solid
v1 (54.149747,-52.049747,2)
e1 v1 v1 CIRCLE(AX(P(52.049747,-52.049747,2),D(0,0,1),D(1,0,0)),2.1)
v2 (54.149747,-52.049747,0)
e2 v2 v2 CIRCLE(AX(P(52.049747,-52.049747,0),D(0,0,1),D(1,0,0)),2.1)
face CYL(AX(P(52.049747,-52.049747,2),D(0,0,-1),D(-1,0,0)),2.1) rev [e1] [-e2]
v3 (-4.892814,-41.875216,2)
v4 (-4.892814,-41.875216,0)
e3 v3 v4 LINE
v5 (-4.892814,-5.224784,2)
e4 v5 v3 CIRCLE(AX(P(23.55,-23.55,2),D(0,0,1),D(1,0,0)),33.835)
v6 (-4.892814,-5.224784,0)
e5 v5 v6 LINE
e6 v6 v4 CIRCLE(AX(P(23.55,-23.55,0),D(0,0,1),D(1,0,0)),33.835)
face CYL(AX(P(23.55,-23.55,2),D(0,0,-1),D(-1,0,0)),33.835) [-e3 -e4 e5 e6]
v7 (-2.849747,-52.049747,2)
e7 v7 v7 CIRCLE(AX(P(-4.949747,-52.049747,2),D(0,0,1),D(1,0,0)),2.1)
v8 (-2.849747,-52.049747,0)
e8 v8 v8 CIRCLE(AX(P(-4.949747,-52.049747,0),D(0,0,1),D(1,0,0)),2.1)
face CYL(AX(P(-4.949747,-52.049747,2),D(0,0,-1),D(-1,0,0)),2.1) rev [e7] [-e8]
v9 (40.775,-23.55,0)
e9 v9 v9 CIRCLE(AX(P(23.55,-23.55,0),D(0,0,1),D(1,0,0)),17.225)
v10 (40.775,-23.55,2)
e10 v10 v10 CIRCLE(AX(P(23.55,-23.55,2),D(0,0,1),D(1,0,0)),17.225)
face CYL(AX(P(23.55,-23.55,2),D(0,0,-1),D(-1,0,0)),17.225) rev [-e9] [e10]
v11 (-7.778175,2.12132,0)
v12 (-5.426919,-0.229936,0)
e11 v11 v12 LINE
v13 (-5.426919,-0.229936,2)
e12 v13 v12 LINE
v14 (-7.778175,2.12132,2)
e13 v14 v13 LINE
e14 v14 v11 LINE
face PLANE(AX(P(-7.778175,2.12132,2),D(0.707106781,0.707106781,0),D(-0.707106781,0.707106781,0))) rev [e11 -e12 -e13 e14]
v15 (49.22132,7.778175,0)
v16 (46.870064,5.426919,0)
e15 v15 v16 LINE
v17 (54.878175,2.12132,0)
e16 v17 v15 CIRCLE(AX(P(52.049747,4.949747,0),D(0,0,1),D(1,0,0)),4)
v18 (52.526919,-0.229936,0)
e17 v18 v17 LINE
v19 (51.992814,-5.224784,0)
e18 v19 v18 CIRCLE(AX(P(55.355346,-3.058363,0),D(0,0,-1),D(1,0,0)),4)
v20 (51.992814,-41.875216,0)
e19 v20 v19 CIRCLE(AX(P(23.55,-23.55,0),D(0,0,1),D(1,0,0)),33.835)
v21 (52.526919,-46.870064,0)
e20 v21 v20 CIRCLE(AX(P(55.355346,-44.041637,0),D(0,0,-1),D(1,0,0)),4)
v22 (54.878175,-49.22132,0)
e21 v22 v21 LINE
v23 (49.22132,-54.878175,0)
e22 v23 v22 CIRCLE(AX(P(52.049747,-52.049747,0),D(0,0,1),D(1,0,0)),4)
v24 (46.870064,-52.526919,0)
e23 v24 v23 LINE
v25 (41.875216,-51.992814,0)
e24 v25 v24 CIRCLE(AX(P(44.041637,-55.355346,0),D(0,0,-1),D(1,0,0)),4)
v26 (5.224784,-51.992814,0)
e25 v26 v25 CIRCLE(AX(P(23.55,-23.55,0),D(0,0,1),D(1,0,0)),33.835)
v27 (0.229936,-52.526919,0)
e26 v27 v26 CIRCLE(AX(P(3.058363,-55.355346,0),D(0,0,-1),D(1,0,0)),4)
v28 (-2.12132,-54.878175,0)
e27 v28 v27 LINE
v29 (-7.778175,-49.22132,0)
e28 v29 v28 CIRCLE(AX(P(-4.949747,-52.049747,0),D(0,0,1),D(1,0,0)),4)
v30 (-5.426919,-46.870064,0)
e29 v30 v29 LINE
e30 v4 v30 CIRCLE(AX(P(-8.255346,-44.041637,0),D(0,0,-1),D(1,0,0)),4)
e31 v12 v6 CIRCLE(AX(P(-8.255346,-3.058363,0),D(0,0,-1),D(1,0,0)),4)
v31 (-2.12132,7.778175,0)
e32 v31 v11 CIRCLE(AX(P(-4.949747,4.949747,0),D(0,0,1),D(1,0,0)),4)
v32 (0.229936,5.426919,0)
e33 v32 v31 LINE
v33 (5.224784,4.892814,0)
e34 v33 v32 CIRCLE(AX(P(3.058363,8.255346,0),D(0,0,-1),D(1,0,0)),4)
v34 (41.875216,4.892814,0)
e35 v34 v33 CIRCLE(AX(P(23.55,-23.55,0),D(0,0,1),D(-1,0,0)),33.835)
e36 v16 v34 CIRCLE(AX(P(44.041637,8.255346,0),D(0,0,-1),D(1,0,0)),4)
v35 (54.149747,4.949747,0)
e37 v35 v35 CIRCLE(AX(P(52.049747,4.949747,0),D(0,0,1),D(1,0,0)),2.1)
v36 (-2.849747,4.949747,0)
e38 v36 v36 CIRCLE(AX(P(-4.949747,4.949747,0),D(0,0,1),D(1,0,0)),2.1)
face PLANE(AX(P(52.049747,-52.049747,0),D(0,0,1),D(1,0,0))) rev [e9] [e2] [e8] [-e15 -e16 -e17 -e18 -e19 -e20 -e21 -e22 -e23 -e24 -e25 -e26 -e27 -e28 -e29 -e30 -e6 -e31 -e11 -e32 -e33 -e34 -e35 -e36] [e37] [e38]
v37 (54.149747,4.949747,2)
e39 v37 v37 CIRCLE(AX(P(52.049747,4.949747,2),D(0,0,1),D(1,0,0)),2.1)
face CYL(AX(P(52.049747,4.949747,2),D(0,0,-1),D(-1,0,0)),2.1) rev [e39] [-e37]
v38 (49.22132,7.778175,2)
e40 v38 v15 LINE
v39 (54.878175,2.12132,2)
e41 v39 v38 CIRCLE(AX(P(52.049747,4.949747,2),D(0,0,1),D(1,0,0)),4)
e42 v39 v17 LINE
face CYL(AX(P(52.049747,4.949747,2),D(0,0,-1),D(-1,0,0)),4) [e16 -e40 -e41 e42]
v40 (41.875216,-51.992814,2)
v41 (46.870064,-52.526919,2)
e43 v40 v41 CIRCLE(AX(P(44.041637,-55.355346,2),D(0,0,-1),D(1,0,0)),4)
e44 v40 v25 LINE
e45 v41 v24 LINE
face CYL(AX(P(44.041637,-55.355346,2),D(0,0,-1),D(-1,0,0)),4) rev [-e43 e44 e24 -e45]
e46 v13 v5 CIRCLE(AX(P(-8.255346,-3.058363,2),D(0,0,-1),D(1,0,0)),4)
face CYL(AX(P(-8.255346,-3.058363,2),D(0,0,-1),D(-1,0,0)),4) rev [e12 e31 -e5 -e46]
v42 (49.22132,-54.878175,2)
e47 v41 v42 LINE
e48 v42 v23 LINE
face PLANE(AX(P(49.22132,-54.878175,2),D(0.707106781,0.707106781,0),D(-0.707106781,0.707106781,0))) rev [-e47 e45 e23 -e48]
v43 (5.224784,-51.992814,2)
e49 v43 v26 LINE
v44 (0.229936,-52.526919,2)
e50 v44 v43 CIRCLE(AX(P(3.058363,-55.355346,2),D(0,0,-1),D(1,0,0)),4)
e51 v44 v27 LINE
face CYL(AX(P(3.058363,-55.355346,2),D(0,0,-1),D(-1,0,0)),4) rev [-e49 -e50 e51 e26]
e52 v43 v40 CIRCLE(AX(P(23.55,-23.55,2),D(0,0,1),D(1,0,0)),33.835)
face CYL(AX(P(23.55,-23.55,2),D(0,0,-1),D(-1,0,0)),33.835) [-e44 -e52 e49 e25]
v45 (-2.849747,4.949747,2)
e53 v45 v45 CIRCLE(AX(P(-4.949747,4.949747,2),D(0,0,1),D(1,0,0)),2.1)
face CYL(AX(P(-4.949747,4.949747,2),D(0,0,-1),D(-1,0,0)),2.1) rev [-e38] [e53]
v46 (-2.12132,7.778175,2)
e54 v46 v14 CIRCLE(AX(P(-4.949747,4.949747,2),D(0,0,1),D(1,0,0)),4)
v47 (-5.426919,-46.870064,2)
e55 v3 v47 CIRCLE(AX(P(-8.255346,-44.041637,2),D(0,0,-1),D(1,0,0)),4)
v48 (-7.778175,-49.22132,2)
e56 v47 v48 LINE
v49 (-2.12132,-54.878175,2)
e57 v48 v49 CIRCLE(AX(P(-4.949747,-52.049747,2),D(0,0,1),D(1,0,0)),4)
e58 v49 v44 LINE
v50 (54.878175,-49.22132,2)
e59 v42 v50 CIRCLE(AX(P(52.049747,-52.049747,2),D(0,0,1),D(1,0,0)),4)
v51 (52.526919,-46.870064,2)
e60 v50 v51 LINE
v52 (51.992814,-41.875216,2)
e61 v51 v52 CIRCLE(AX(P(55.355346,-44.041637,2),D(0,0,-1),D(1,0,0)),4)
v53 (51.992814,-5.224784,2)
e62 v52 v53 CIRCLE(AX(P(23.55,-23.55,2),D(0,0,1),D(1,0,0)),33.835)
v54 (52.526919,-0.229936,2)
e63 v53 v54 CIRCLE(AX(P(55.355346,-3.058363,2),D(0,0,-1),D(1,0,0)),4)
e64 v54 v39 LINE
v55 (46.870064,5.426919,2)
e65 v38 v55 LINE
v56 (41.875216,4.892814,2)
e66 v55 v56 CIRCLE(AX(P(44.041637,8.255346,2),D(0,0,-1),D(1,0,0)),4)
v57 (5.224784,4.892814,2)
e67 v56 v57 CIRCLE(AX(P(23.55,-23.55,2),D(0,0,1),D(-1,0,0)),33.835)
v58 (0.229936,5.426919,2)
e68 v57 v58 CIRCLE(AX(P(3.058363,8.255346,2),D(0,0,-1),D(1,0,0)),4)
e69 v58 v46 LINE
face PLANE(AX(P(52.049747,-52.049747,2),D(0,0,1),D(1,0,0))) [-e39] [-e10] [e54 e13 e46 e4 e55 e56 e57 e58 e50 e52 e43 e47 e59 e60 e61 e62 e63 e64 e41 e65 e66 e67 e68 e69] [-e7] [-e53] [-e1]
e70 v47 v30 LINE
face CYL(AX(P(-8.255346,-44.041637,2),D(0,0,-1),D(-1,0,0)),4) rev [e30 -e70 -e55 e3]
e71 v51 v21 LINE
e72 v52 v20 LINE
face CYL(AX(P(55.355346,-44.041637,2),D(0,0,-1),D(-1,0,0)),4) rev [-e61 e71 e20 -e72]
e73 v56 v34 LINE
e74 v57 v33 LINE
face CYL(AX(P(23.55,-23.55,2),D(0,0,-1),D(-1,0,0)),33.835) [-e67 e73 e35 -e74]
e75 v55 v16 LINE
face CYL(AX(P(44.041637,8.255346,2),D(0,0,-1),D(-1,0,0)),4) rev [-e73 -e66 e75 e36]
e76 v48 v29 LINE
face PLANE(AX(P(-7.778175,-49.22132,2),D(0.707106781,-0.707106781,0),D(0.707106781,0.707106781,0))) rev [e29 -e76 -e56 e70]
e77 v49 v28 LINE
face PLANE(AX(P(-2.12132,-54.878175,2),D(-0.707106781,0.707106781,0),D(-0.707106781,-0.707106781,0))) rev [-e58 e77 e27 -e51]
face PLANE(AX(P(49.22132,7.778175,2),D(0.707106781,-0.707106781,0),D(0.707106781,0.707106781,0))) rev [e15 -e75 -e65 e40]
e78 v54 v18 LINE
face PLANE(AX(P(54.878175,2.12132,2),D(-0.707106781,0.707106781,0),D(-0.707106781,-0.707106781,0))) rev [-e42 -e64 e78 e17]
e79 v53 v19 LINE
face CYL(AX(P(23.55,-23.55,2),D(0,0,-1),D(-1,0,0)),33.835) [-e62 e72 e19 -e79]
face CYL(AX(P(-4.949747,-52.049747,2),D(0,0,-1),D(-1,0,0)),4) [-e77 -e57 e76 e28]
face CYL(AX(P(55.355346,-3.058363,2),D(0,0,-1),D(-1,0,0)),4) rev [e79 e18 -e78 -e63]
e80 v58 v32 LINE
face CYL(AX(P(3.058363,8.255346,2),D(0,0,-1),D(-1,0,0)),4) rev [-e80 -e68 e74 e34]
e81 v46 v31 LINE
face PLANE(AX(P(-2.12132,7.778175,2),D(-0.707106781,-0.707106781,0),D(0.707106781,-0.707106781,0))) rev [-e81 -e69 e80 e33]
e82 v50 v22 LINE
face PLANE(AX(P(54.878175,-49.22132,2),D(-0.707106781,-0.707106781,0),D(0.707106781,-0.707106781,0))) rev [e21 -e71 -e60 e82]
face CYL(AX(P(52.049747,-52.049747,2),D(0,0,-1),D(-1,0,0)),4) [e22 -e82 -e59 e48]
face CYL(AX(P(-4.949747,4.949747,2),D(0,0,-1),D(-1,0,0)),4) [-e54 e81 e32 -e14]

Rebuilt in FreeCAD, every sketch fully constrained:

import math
import FreeCAD as App
import Part
import Sketcher

V = App.Vector

doc = App.newDocument("Part")
body = doc.addObject("PartDesign::Body", "Body")

# Sketch on XY plane
sketch1 = body.newObject("Sketcher::SketchObject", "Sketch")
sketch1.AttachmentSupport = (doc.getObject("XY_Plane"), [""])
sketch1.MapMode = "FlatFace"
sketch1.addGeometry([
    Part.LineSegment(V(46.870064, -52.526919, 0), V(49.22132, -54.878175, 0)),  # 0
    Part.ArcOfCircle(Part.Circle(V(52.049747, -52.049747, 0), V(0, 0, 1), 4), math.radians(-135), math.radians(45)),  # 1
    Part.LineSegment(V(54.878175, -49.22132, 0), V(52.526919, -46.870064, 0)),  # 2
    Part.ArcOfCircle(Part.Circle(V(55.355346, -44.041637, 0), V(0, 0, 1), 4), math.radians(147.207013), math.radians(225)),  # 3
    Part.ArcOfCircle(Part.Circle(V(23.55, -23.55, 0), V(0, 0, 1), 33.835), math.radians(-32.792987), math.radians(32.792987)),  # 4
    Part.ArcOfCircle(Part.Circle(V(55.355346, -3.058363, 0), V(0, 0, 1), 4), math.radians(135), math.radians(212.792987)),  # 5
    Part.LineSegment(V(52.526919, -0.229936, 0), V(54.878175, 2.12132, 0)),  # 6
    Part.ArcOfCircle(Part.Circle(V(52.049747, 4.949747, 0), V(0, 0, 1), 4), math.radians(-45), math.radians(135)),  # 7
    Part.LineSegment(V(49.22132, 7.778175, 0), V(46.870064, 5.426919, 0)),  # 8
    Part.ArcOfCircle(Part.Circle(V(44.041637, 8.255346, 0), V(0, 0, 1), 4), math.radians(-122.792987), math.radians(-45)),  # 9
    Part.ArcOfCircle(Part.Circle(V(23.55, -23.55, 0), V(0, 0, 1), 33.835), math.radians(57.207013), math.radians(122.792987)),  # 10
    Part.ArcOfCircle(Part.Circle(V(3.058363, 8.255346, 0), V(0, 0, 1), 4), math.radians(-135), math.radians(-57.207013)),  # 11
    Part.LineSegment(V(0.229936, 5.426919, 0), V(-2.12132, 7.778175, 0)),  # 12
    Part.ArcOfCircle(Part.Circle(V(-4.949747, 4.949747, 0), V(0, 0, 1), 4), math.radians(45), math.radians(225)),  # 13
    Part.LineSegment(V(-7.778175, 2.12132, 0), V(-5.426919, -0.229936, 0)),  # 14
    Part.ArcOfCircle(Part.Circle(V(-8.255346, -3.058363, 0), V(0, 0, 1), 4), math.radians(-32.792987), math.radians(45)),  # 15
    Part.ArcOfCircle(Part.Circle(V(23.55, -23.55, 0), V(0, 0, 1), 33.835), math.radians(147.207013), math.radians(212.792987)),  # 16
    Part.ArcOfCircle(Part.Circle(V(-8.255346, -44.041637, 0), V(0, 0, 1), 4), math.radians(-45), math.radians(32.792987)),  # 17
    Part.LineSegment(V(-5.426919, -46.870064, 0), V(-7.778175, -49.22132, 0)),  # 18
    Part.ArcOfCircle(Part.Circle(V(-4.949747, -52.049747, 0), V(0, 0, 1), 4), math.radians(135), math.radians(315)),  # 19
    Part.LineSegment(V(-2.12132, -54.878175, 0), V(0.229936, -52.526919, 0)),  # 20
    Part.ArcOfCircle(Part.Circle(V(3.058363, -55.355346, 0), V(0, 0, 1), 4), math.radians(57.207013), math.radians(135)),  # 21
    Part.ArcOfCircle(Part.Circle(V(23.55, -23.55, 0), V(0, 0, 1), 33.835), math.radians(-122.792987), math.radians(-57.207013)),  # 22
    Part.ArcOfCircle(Part.Circle(V(44.041637, -55.355346, 0), V(0, 0, 1), 4), math.radians(45), math.radians(122.792987)),  # 23
    Part.Circle(V(52.049747, -52.049747, 0), V(0, 0, 1), 2.1),  # 24
    Part.Circle(V(-4.949747, -52.049747, 0), V(0, 0, 1), 2.1),  # 25
    Part.Circle(V(52.049747, 4.949747, 0), V(0, 0, 1), 2.1),  # 26
    Part.Circle(V(23.55, -23.55, 0), V(0, 0, 1), 17.225),  # 27
    Part.Circle(V(-4.949747, 4.949747, 0), V(0, 0, 1), 2.1),  # 28
], False)
sketch1.addConstraint([
    Sketcher.Constraint("Tangent", 0, 2, 1, 1),
    Sketcher.Constraint("Tangent", 1, 2, 2, 1),
    Sketcher.Constraint("Tangent", 2, 2, 3, 2),
    Sketcher.Constraint("Tangent", 3, 1, 4, 1),
    Sketcher.Constraint("Tangent", 4, 2, 5, 2),
    Sketcher.Constraint("Tangent", 5, 1, 6, 1),
    Sketcher.Constraint("Tangent", 6, 2, 7, 1),
    Sketcher.Constraint("Tangent", 7, 2, 8, 1),
    Sketcher.Constraint("Tangent", 8, 2, 9, 2),
    Sketcher.Constraint("Tangent", 9, 1, 10, 1),
    Sketcher.Constraint("Tangent", 10, 2, 11, 2),
    Sketcher.Constraint("Tangent", 11, 1, 12, 1),
    Sketcher.Constraint("Tangent", 12, 2, 13, 1),
    Sketcher.Constraint("Tangent", 13, 2, 14, 1),
    Sketcher.Constraint("Tangent", 14, 2, 15, 2),
    Sketcher.Constraint("Tangent", 15, 1, 16, 1),
    Sketcher.Constraint("Tangent", 16, 2, 17, 2),
    Sketcher.Constraint("Tangent", 17, 1, 18, 1),
    Sketcher.Constraint("Tangent", 18, 2, 19, 1),
    Sketcher.Constraint("Tangent", 19, 2, 20, 1),
    Sketcher.Constraint("Tangent", 20, 2, 21, 2),
    Sketcher.Constraint("Tangent", 21, 1, 22, 1),
    Sketcher.Constraint("Tangent", 22, 2, 23, 2),
    Sketcher.Constraint("Tangent", 23, 1, 0, 1),
    Sketcher.Constraint("Coincident", 10, 3, 4, 3),
    Sketcher.Constraint("Coincident", 16, 3, 4, 3),
    Sketcher.Constraint("Coincident", 22, 3, 4, 3),
    Sketcher.Constraint("Coincident", 24, 3, 1, 3),
    Sketcher.Constraint("Coincident", 25, 3, 19, 3),
    Sketcher.Constraint("Coincident", 26, 3, 7, 3),
    Sketcher.Constraint("Coincident", 27, 3, 4, 3),
    Sketcher.Constraint("Coincident", 28, 3, 13, 3),
    Sketcher.Constraint("Equal", 1, 3),
    Sketcher.Constraint("Equal", 3, 5),
    Sketcher.Constraint("Equal", 5, 7),
    Sketcher.Constraint("Equal", 7, 9),
    Sketcher.Constraint("Equal", 4, 10),
    Sketcher.Constraint("Equal", 9, 11),
    Sketcher.Constraint("Equal", 11, 13),
    Sketcher.Constraint("Equal", 13, 15),
    Sketcher.Constraint("Equal", 10, 16),
    Sketcher.Constraint("Equal", 15, 17),
    Sketcher.Constraint("Equal", 17, 19),
    Sketcher.Constraint("Equal", 19, 21),
    Sketcher.Constraint("Equal", 16, 22),
    Sketcher.Constraint("Equal", 21, 23),
    Sketcher.Constraint("Equal", 24, 25),
    Sketcher.Constraint("Equal", 25, 26),
    Sketcher.Constraint("Equal", 26, 28),
    Sketcher.Constraint("Parallel", 0, 2),
    Sketcher.Constraint("Perpendicular", 2, 6),
    Sketcher.Constraint("Parallel", 6, 8),
    Sketcher.Constraint("Perpendicular", 8, 12),
    Sketcher.Constraint("Parallel", 12, 14),
    Sketcher.Constraint("Perpendicular", 14, 18),
    Sketcher.Constraint("Parallel", 18, 20),
    Sketcher.Constraint("Horizontal", 9, 3, 11, 3),
    Sketcher.Constraint("Horizontal", 7, 3, 13, 3),
    Sketcher.Constraint("Horizontal", 3, 3, 17, 3),
    Sketcher.Constraint("Horizontal", 1, 3, 19, 3),
    Sketcher.Constraint("Horizontal", 8, 2, 11, 1),
    Sketcher.Constraint("Vertical", 3, 3, 5, 3),
    Sketcher.Constraint("Vertical", 1, 3, 7, 3),
    Sketcher.Constraint("Equal", 0, 2),
    Sketcher.Constraint("Radius", 1, 4.0),
    Sketcher.Constraint("Diameter", 24, 4.2),
    Sketcher.Constraint("Diameter", 27, 34.45),
    Sketcher.Constraint("Radius", 4, 33.835),
    Sketcher.Constraint("DistanceX", -1, 1, 4, 3, 23.55),
    Sketcher.Constraint("DistanceY", 4, 3, -1, 1, 23.55),
    Sketcher.Constraint("DistanceX", 1, 3, 3, 3, 3.305598),
])
pad1 = body.newObject("PartDesign::Pad", "Pad")
pad1.Profile = sketch1
pad1.Length = 2

doc.recompute()
